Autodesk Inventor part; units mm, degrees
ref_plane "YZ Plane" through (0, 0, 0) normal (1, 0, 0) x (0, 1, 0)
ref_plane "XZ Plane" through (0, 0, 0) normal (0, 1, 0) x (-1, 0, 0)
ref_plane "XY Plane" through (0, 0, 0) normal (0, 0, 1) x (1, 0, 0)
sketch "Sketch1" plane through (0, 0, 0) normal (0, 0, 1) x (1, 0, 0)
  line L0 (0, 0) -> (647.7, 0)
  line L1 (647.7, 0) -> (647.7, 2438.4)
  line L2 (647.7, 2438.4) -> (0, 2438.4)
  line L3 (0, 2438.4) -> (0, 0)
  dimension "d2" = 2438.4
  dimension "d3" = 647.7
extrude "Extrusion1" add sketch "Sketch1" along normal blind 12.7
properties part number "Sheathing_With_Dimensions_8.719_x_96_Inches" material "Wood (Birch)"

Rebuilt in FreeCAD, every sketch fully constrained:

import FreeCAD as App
import Part
import Sketcher

V = App.Vector
Q = App.Units.Quantity

doc = App.newDocument("Part")
body = doc.addObject("PartDesign::Body", "Body")

# Sketch on XY plane
sketch1 = body.newObject("Sketcher::SketchObject", "Sketch")
sketch1.AttachmentSupport = (doc.getObject("XY_Plane"), [""])
sketch1.MapMode = "FlatFace"
sketch1.addGeometry([
    Part.LineSegment(V(0, 2438, 0), V(0, 0, 0)),
    Part.LineSegment(V(0, 0, 0), V(648, 0, 0)),
    Part.LineSegment(V(648, 0, 0), V(648, 2438, 0)),
    Part.LineSegment(V(648, 2438, 0), V(0, 2438, 0)),
], False)
sketch1.addConstraint([
    Sketcher.Constraint("Coincident", 0, 2, 1, 1),
    Sketcher.Constraint("Coincident", 1, 2, 2, 1),
    Sketcher.Constraint("Coincident", 2, 2, 3, 1),
    Sketcher.Constraint("Coincident", 3, 2, 0, 1),
    Sketcher.Constraint("Vertical", 0),
    Sketcher.Constraint("Horizontal", 1),
    Sketcher.Constraint("Vertical", 2),
    Sketcher.Constraint("Horizontal", 3),
    Sketcher.Constraint("Coincident", 0, 2, -1, 1),
    Sketcher.Constraint("DistanceY", 0, 2, 0, 1, Q("96 in")),
    Sketcher.Constraint("DistanceX", 1, 1, 1, 2, Q("25.5 in")),
])
pad1 = body.newObject("PartDesign::Pad", "Pad")
pad1.Profile = sketch1
pad1.Length = Q("0.5 in")

doc.recompute()
